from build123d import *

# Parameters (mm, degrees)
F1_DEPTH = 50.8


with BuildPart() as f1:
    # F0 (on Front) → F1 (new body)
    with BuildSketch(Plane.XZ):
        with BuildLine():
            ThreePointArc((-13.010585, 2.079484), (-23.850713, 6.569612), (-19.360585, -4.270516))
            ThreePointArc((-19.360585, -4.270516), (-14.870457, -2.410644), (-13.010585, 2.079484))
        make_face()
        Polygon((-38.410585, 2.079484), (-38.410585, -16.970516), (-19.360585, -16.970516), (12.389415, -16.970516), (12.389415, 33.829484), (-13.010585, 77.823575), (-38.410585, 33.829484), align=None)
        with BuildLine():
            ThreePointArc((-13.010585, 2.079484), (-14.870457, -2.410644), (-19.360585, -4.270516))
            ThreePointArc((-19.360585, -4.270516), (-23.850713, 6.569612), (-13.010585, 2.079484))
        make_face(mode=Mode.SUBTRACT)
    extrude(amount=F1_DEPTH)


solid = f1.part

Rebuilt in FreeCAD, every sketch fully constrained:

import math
import FreeCAD as App
import Part
import Sketcher
from FreeCAD import Vector
Q = App.Units.Quantity


def add_polygon(sketch, points):
    """Adds a closed chain of lines whose ends are joined by coincident constraints."""
    first, n = sketch.GeometryCount, len(points)
    for a, b in zip(points, points[1:] + points[:1]):
        sketch.addGeometry(Part.LineSegment(App.Vector(*a, 0), App.Vector(*b, 0)), False)
    for i in range(n):
        sketch.addConstraint(Sketcher.Constraint("Coincident", first + i, 2, first + (i + 1) % n, 1))

doc = App.newDocument("Part")
params = doc.addObject("Spreadsheet::Sheet", "Params")
for row, (alias, value) in enumerate([
    ("sketch1_width", "2 in"),
    ("sketch1_radius", "0.25 in"),
    ("sketch1_length", "2 in"),
    ("pad1_length", "2 in"),
], start=1):
    params.set(f"A{row}", alias)
    params.set(f"B{row}", "=" + value)
    params.setAlias(f"B{row}", alias)

body = doc.addObject("PartDesign::Body", "Body")

# Sketch on XZ plane
sketch1 = doc.addObject("Sketcher::SketchObject", "Sketch")
body.addObject(sketch1)
sketch1.AttachmentSupport = (doc.XZ_Plane, [""])
sketch1.MapMode = "FlatFace"
add_polygon(sketch1, [(-38.410585, -16.970516), (12.389415, -16.970516), (12.389415, 33.829484), (-13.010585, 77.823575), (-38.410585, 33.829484)])  # lines 0-4
sketch1.addGeometry(Part.ArcOfCircle(Part.Circle(Vector(-19.360585, 2.079484, 0), Vector(0, 0, 1), 6.35), math.radians(0), math.radians(270)), False)  # 5
sketch1.addGeometry(Part.ArcOfCircle(Part.Circle(Vector(-19.360585, 2.079484, 0), Vector(0, 0, 1), 6.35), math.radians(-89.999998), math.radians(-0.000002)), False)  # 6
sketch1.addConstraint([
    Sketcher.Constraint("Tangent", 5, 1, 6, 2),
    Sketcher.Constraint("Coincident", 6, 1, 5, 2),
    Sketcher.Constraint("Horizontal", 0),
    Sketcher.Constraint("Vertical", 1),
    Sketcher.Constraint("Vertical", 4),
    Sketcher.Constraint("Horizontal", 1, 2, 3, 2),
    Sketcher.Constraint("Horizontal", 6, 3, 5, 1),
    Sketcher.Constraint("Vertical", 2, 2, 5, 1),
    Sketcher.Constraint("Vertical", 5, 3, 6, 1),
    Sketcher.Constraint("Equal", 0, 1),
    Sketcher.Constraint("Equal", 2, 3),
    Sketcher.Constraint("DistanceX", 0, 1, 0, 2, Q("2 in")),
    Sketcher.Constraint("Radius", 5, Q("0.25 in")),
    Sketcher.Constraint("Distance", 2, Q("2 in")),
    Sketcher.Constraint("DistanceY", 4, 2, 6, 1, Q("0.5 in")),
    Sketcher.Constraint("DistanceX", 5, 3, -1, 1, Q("19.360585 mm")),
    Sketcher.Constraint("DistanceY", -1, 1, 5, 3, Q("2.079484 mm")),
])
sketch1.setExpression("Constraints[16]", "Params.sketch1_width")
sketch1.setExpression("Constraints[17]", "Params.sketch1_radius")
sketch1.setExpression("Constraints[18]", "Params.sketch1_length")
pad1 = doc.addObject("PartDesign::Pad", "Pad")
body.addObject(pad1)
pad1.Profile = sketch1
pad1.setExpression("Length", "Params.pad1_length")

doc.recompute()
